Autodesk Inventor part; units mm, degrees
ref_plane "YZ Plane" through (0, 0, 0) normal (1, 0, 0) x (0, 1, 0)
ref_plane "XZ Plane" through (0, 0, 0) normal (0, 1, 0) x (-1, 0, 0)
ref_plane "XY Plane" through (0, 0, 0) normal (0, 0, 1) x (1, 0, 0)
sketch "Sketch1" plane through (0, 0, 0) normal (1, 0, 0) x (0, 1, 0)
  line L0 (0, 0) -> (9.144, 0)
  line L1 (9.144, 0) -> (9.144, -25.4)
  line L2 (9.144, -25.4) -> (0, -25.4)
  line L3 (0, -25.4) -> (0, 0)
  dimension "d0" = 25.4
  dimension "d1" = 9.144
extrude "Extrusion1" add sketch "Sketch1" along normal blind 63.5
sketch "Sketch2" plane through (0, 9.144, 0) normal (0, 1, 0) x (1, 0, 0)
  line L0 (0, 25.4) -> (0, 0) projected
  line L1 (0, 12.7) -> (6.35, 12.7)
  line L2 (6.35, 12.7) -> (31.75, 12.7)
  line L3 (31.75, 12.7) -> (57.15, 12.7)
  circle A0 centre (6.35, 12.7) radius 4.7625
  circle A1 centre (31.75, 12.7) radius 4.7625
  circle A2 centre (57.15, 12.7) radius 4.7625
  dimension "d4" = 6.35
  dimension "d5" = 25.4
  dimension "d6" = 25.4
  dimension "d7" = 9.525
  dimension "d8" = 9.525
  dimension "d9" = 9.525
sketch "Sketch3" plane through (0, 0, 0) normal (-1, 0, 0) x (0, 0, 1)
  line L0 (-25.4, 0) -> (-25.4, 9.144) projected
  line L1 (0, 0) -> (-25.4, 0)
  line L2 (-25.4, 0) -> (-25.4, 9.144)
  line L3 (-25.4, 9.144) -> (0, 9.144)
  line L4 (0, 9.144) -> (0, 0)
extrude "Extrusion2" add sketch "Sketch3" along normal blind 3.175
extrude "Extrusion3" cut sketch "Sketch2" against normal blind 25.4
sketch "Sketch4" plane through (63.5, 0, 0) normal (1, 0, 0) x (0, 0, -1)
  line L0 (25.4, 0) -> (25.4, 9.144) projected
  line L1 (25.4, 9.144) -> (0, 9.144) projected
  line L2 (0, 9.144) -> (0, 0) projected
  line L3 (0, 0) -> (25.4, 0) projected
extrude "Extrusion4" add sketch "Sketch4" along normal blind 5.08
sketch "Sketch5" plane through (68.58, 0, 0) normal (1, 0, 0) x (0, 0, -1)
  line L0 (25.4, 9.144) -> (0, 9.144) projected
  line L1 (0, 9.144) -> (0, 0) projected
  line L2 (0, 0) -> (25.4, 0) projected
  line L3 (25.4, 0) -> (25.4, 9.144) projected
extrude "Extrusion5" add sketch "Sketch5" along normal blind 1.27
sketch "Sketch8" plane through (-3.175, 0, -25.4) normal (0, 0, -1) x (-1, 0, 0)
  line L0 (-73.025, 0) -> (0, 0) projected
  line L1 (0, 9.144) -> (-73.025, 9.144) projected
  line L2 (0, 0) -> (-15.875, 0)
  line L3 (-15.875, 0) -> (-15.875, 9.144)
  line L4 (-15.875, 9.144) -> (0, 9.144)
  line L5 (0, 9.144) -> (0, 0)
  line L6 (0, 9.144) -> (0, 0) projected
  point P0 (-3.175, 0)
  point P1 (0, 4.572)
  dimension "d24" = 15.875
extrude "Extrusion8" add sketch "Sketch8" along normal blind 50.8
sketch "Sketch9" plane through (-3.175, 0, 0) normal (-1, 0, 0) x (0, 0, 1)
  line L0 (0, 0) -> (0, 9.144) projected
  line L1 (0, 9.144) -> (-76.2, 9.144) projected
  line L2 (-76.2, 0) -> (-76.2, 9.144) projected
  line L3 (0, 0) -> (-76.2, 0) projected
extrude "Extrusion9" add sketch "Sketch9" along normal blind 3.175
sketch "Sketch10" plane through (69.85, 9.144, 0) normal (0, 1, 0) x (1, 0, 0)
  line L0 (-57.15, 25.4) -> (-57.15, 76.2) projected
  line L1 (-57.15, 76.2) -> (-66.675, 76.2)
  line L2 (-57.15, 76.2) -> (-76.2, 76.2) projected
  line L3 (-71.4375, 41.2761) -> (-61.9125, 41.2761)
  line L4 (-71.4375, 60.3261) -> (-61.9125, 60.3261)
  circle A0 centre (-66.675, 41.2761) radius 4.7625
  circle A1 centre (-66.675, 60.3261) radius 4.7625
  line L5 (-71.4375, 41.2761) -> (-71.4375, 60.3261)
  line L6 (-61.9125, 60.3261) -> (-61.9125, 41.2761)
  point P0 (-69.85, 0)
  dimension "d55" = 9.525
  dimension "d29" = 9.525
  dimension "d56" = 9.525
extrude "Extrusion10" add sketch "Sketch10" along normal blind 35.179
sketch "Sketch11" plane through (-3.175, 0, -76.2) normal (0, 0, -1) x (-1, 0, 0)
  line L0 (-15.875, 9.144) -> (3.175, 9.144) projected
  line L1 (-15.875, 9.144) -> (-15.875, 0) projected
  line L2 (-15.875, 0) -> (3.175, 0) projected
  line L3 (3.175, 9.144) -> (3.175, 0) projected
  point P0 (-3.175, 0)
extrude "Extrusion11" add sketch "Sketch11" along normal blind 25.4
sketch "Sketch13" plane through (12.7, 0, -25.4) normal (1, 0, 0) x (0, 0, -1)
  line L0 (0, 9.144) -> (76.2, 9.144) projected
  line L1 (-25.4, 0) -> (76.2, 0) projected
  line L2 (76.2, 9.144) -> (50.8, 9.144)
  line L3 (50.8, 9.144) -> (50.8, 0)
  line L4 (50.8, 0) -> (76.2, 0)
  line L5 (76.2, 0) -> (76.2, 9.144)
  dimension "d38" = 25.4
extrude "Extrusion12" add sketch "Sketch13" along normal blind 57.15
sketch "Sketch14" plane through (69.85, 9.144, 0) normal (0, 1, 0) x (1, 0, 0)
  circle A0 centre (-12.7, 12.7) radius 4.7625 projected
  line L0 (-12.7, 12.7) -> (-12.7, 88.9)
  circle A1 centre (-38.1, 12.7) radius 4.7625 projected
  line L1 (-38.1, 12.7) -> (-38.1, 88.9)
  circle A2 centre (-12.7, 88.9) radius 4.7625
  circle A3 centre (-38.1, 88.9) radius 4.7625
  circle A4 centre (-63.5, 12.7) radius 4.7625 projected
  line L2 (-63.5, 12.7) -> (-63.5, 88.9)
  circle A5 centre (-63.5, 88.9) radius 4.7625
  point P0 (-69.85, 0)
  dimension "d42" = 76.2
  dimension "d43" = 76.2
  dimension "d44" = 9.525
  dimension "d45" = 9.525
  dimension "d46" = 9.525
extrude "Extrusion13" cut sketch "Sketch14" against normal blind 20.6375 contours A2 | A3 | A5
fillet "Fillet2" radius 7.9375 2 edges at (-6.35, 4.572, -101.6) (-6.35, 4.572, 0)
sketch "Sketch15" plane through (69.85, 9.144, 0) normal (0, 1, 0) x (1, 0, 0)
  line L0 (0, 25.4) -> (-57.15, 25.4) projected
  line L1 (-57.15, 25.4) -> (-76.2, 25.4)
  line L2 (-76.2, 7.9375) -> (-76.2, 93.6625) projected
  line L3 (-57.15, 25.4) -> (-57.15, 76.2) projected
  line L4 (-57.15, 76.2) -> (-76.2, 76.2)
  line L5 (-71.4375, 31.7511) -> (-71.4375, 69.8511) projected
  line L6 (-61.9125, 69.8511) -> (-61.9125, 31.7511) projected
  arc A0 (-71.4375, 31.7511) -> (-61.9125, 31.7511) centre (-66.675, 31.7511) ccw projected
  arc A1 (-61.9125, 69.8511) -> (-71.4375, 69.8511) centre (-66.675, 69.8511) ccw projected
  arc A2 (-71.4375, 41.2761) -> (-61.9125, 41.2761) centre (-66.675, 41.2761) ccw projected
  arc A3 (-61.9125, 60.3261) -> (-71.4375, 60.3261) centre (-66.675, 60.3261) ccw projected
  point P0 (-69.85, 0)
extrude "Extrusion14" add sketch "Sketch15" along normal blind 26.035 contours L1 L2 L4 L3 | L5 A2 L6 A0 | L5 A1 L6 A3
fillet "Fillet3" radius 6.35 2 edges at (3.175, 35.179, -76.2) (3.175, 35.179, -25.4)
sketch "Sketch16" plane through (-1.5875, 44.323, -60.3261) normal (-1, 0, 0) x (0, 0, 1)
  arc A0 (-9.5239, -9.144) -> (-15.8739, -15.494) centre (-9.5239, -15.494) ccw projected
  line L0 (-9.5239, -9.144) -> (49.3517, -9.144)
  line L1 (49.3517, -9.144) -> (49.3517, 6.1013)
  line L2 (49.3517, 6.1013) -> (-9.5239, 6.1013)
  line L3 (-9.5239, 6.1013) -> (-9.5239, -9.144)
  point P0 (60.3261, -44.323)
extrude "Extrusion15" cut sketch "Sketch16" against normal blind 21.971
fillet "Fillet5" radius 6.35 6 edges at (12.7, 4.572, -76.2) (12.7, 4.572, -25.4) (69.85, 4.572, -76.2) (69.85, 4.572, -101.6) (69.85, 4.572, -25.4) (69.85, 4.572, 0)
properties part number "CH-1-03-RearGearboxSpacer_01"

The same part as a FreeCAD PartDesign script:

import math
import FreeCAD as App
import Part
import Sketcher
from FreeCAD import Vector
Q = App.Units.Quantity


def edges_at(feature, points):
    """Names of the edges that pass closest to the given points."""
    edges = feature.Shape.Edges
    near = lambda p: min(range(len(edges)), key=lambda i: edges[i].distToShape(Part.Vertex(*p))[0])
    return sorted({f"Edge{near(p) + 1}" for p in points})

doc = App.newDocument("Part")
body = doc.addObject("PartDesign::Body", "Body")

sketch1 = body.newObject("Sketcher::SketchObject", "Sketch")
sketch1.AttachmentSupport = (doc.getObject("YZ_Plane"), [""])
sketch1.MapMode = "FlatFace"
sketch1.addGeometry([
    Part.LineSegment(Vector(9.144, 0, 0), Vector(0, 0, 0)),
    Part.LineSegment(Vector(0, 0, 0), Vector(0, -25.4, 0)),
    Part.LineSegment(Vector(0, -25.4, 0), Vector(9.144, -25.4, 0)),
    Part.LineSegment(Vector(9.144, -25.4, 0), Vector(9.144, 0, 0)),
], False)
sketch1.addConstraint([
    Sketcher.Constraint("Coincident", 0, 2, 1, 1),
    Sketcher.Constraint("Coincident", 1, 2, 2, 1),
    Sketcher.Constraint("Coincident", 2, 2, 3, 1),
    Sketcher.Constraint("Coincident", 3, 2, 0, 1),
    Sketcher.Constraint("Horizontal", 0),
    Sketcher.Constraint("Vertical", 1),
    Sketcher.Constraint("Horizontal", 2),
    Sketcher.Constraint("Vertical", 3),
    Sketcher.Constraint("Coincident", 0, 2, -1, 1),
    Sketcher.Constraint("DistanceY", 1, 2, 1, 1, Q("1 in")),
    Sketcher.Constraint("DistanceX", 0, 2, 0, 1, Q("0.36 in")),
])
pad1 = body.newObject("PartDesign::Pad", "Pad")
pad1.Profile = sketch1
pad1.Length = Q("2.5 in")

sketch2 = body.newObject("Sketcher::SketchObject", "Sketch001")
sketch2.AttachmentSupport = (doc.getObject("YZ_Plane"), [""])
sketch2.MapMode = "FlatFace"
sketch2.addGeometry([
    Part.LineSegment(Vector(9.144, -25.4, 0), Vector(0, -25.4, 0)),
    Part.LineSegment(Vector(0, -25.4, 0), Vector(0, 0, 0)),
    Part.LineSegment(Vector(0, 0, 0), Vector(9.144, 0, 0)),
    Part.LineSegment(Vector(9.144, 0, 0), Vector(9.144, -25.4, 0)),
], False)
sketch2.addConstraint([
    Sketcher.Constraint("Coincident", 0, 2, 1, 1),
    Sketcher.Constraint("Coincident", 1, 2, 2, 1),
    Sketcher.Constraint("Coincident", 2, 2, 3, 1),
    Sketcher.Constraint("Coincident", 3, 2, 0, 1),
    Sketcher.Constraint("Horizontal", 0),
    Sketcher.Constraint("Vertical", 1),
    Sketcher.Constraint("Horizontal", 2),
    Sketcher.Constraint("Vertical", 3),
    Sketcher.Constraint("Coincident", 1, 2, -1, 1),
    Sketcher.Constraint("DistanceY", 1, 1, 1, 2, Q("1 in")),
    Sketcher.Constraint("DistanceX", 0, 2, 0, 1, Q("0.36 in")),
])
pad2 = body.newObject("PartDesign::Pad", "Pad001")
pad2.Profile = sketch2
pad2.Length = Q("0.125 in")
pad2.Reversed = True

sketch3 = body.newObject("Sketcher::SketchObject", "Sketch002")
sketch3.AttachmentSupport = (doc.getObject("XZ_Plane"), [""])
sketch3.MapMode = "FlatFace"
sketch3.AttachmentOffset = App.Placement(Vector(0, 0, -0.36 * 25.4), App.Rotation())
sketch3.addGeometry([
    Part.Circle(Vector(6.35, -12.7, 0), Vector(0, 0, 1), 4.7625),
    Part.Circle(Vector(57.15, -12.7, 0), Vector(0, 0, 1), 4.7625),
    Part.Circle(Vector(31.75, -12.7, 0), Vector(0, 0, 1), 4.7625),
], False)
sketch3.addConstraint([
    Sketcher.Constraint("Equal", 0, 1),
    Sketcher.Constraint("Equal", 1, 2),
    Sketcher.Constraint("Horizontal", 0, 3, 1, 3),
    Sketcher.Constraint("Horizontal", 1, 3, 2, 3),
    Sketcher.Constraint("Diameter", 0, Q("0.375 in")),
    Sketcher.Constraint("DistanceX", 0, 3, 2, 3, Q("1 in")),
    Sketcher.Constraint("DistanceX", 2, 3, 1, 3, Q("1 in")),
    Sketcher.Constraint("DistanceX", -1, 1, 0, 3, Q("0.25 in")),
    Sketcher.Constraint("DistanceY", 0, 3, -1, 1, Q("0.5 in")),
])
pocket1 = body.newObject("PartDesign::Pocket", "Pocket")
pocket1.Profile = sketch3
pocket1.Length = Q("1 in")
pocket1.Reversed = True

sketch4 = body.newObject("Sketcher::SketchObject", "Sketch003")
sketch4.AttachmentSupport = (doc.getObject("YZ_Plane"), [""])
sketch4.MapMode = "FlatFace"
sketch4.AttachmentOffset = App.Placement(Vector(0, 0, 2.5 * 25.4), App.Rotation())
sketch4.addGeometry([
    Part.LineSegment(Vector(0, 0, 0), Vector(0, -25.4, 0)),
    Part.LineSegment(Vector(0, -25.4, 0), Vector(9.144, -25.4, 0)),
    Part.LineSegment(Vector(9.144, -25.4, 0), Vector(9.144, 0, 0)),
    Part.LineSegment(Vector(9.144, 0, 0), Vector(0, 0, 0)),
], False)
sketch4.addConstraint([
    Sketcher.Constraint("Coincident", 0, 2, 1, 1),
    Sketcher.Constraint("Coincident", 1, 2, 2, 1),
    Sketcher.Constraint("Coincident", 2, 2, 3, 1),
    Sketcher.Constraint("Coincident", 3, 2, 0, 1),
    Sketcher.Constraint("Vertical", 0),
    Sketcher.Constraint("Horizontal", 1),
    Sketcher.Constraint("Vertical", 2),
    Sketcher.Constraint("Horizontal", 3),
    Sketcher.Constraint("Coincident", 3, 2, -1, 1),
    Sketcher.Constraint("DistanceY", 0, 2, 0, 1, Q("1 in")),
    Sketcher.Constraint("DistanceX", 1, 1, 1, 2, Q("0.36 in")),
])
pad3 = body.newObject("PartDesign::Pad", "Pad002")
pad3.Profile = sketch4
pad3.Length = Q("0.2 in")

sketch5 = body.newObject("Sketcher::SketchObject", "Sketch004")
sketch5.AttachmentSupport = (doc.getObject("YZ_Plane"), [""])
sketch5.MapMode = "FlatFace"
sketch5.AttachmentOffset = App.Placement(Vector(0, 0, 2.7 * 25.4), App.Rotation())
sketch5.addGeometry([
    Part.LineSegment(Vector(0, -25.4, 0), Vector(9.144, -25.4, 0)),
    Part.LineSegment(Vector(9.144, -25.4, 0), Vector(9.144, 0, 0)),
    Part.LineSegment(Vector(9.144, 0, 0), Vector(0, 0, 0)),
    Part.LineSegment(Vector(0, 0, 0), Vector(0, -25.4, 0)),
], False)
sketch5.addConstraint([
    Sketcher.Constraint("Coincident", 0, 2, 1, 1),
    Sketcher.Constraint("Coincident", 1, 2, 2, 1),
    Sketcher.Constraint("Coincident", 2, 2, 3, 1),
    Sketcher.Constraint("Coincident", 3, 2, 0, 1),
    Sketcher.Constraint("Horizontal", 0),
    Sketcher.Constraint("Vertical", 1),
    Sketcher.Constraint("Horizontal", 2),
    Sketcher.Constraint("Vertical", 3),
    Sketcher.Constraint("Coincident", 2, 2, -1, 1),
    Sketcher.Constraint("DistanceY", 1, 1, 1, 2, Q("1 in")),
    Sketcher.Constraint("DistanceX", 0, 1, 0, 2, Q("0.36 in")),
])
pad4 = body.newObject("PartDesign::Pad", "Pad003")
pad4.Profile = sketch5
pad4.Length = Q("0.05 in")

sketch6 = body.newObject("Sketcher::SketchObject", "Sketch005")
sketch6.AttachmentSupport = (doc.getObject("XY_Plane"), [""])
sketch6.MapMode = "FlatFace"
sketch6.AttachmentOffset = App.Placement(Vector(0, 0, -1 * 25.4), App.Rotation())
sketch6.addGeometry([
    Part.LineSegment(Vector(12.7, 9.144, 0), Vector(12.7, 0, 0)),
    Part.LineSegment(Vector(12.7, 0, 0), Vector(-3.175, 0, 0)),
    Part.LineSegment(Vector(-3.175, 0, 0), Vector(-3.175, 9.144, 0)),
    Part.LineSegment(Vector(-3.175, 9.144, 0), Vector(12.7, 9.144, 0)),
], False)
sketch6.addConstraint([
    Sketcher.Constraint("Coincident", 0, 2, 1, 1),
    Sketcher.Constraint("Coincident", 1, 2, 2, 1),
    Sketcher.Constraint("Coincident", 2, 2, 3, 1),
    Sketcher.Constraint("Coincident", 3, 2, 0, 1),
    Sketcher.Constraint("Vertical", 0),
    Sketcher.Constraint("Horizontal", 1),
    Sketcher.Constraint("Vertical", 2),
    Sketcher.Constraint("Horizontal", 3),
    Sketcher.Constraint("PointOnObject", 0, 2, -1),
    Sketcher.Constraint("DistanceX", 1, 2, 1, 1, Q("0.625 in")),
    Sketcher.Constraint("DistanceY", 0, 2, 0, 1, Q("0.36 in")),
    Sketcher.Constraint("DistanceX", -1, 1, 0, 2, Q("0.5 in")),
])
pad5 = body.newObject("PartDesign::Pad", "Pad004")
pad5.Profile = sketch6
pad5.Length = Q("2 in")
pad5.Reversed = True

sketch7 = body.newObject("Sketcher::SketchObject", "Sketch006")
sketch7.AttachmentSupport = (doc.getObject("YZ_Plane"), [""])
sketch7.MapMode = "FlatFace"
sketch7.AttachmentOffset = App.Placement(Vector(0, 0, -0.125 * 25.4), App.Rotation())
sketch7.addGeometry([
    Part.LineSegment(Vector(0, -76.2, 0), Vector(0, 0, 0)),
    Part.LineSegment(Vector(0, 0, 0), Vector(9.144, 0, 0)),
    Part.LineSegment(Vector(9.144, 0, 0), Vector(9.144, -76.2, 0)),
    Part.LineSegment(Vector(9.144, -76.2, 0), Vector(0, -76.2, 0)),
], False)
sketch7.addConstraint([
    Sketcher.Constraint("Coincident", 0, 2, 1, 1),
    Sketcher.Constraint("Coincident", 1, 2, 2, 1),
    Sketcher.Constraint("Coincident", 2, 2, 3, 1),
    Sketcher.Constraint("Coincident", 3, 2, 0, 1),
    Sketcher.Constraint("Vertical", 0),
    Sketcher.Constraint("Horizontal", 1),
    Sketcher.Constraint("Vertical", 2),
    Sketcher.Constraint("Horizontal", 3),
    Sketcher.Constraint("Coincident", 0, 2, -1, 1),
    Sketcher.Constraint("DistanceY", 0, 1, 0, 2, Q("3 in")),
    Sketcher.Constraint("DistanceX", 1, 1, 1, 2, Q("0.36 in")),
])
pad6 = body.newObject("PartDesign::Pad", "Pad005")
pad6.Profile = sketch7
pad6.Length = Q("0.125 in")
pad6.Reversed = True

sketch8 = body.newObject("Sketcher::SketchObject", "Sketch007")
sketch8.AttachmentSupport = (doc.getObject("XZ_Plane"), [""])
sketch8.MapMode = "FlatFace"
sketch8.AttachmentOffset = App.Placement(Vector(0, 0, -0.36 * 25.4), App.Rotation())
sketch8.addGeometry([
    Part.LineSegment(Vector(-1.5875, -60.3261, 0), Vector(-1.5875, -41.2761, 0)),
    Part.ArcOfCircle(Part.Circle(Vector(3.175, -41.2761, 0), Vector(0, 0, 1), 4.7625), math.radians(0), math.radians(180)),
    Part.LineSegment(Vector(7.9375, -41.2761, 0), Vector(7.9375, -60.3261, 0)),
    Part.ArcOfCircle(Part.Circle(Vector(3.175, -60.3261, 0), Vector(0, 0, 1), 4.7625), math.radians(180), math.radians(360)),
], False)
sketch8.addConstraint([
    Sketcher.Constraint("Tangent", 0, 2, 1, 2),
    Sketcher.Constraint("Tangent", 1, 1, 2, 1),
    Sketcher.Constraint("Tangent", 2, 2, 3, 2),
    Sketcher.Constraint("Tangent", 3, 1, 0, 1),
    Sketcher.Constraint("Vertical", 0),
    Sketcher.Constraint("Vertical", 2),
    Sketcher.Constraint("Radius", 1, Q("0.1875 in")),
    Sketcher.Constraint("DistanceY", 0, 1, 0, 2, Q("0.75 in")),
    Sketcher.Constraint("DistanceX", -1, 1, 1, 3, Q("0.125 in")),
    Sketcher.Constraint("DistanceY", 1, 3, -1, 1, Q("41.276 mm")),
])
pad7 = body.newObject("PartDesign::Pad", "Pad006")
pad7.Profile = sketch8
pad7.Length = Q("1.385 in")
pad7.Reversed = True

sketch9 = body.newObject("Sketcher::SketchObject", "Sketch008")
sketch9.AttachmentSupport = (doc.getObject("XY_Plane"), [""])
sketch9.MapMode = "FlatFace"
sketch9.AttachmentOffset = App.Placement(Vector(0, 0, -3 * 25.4), App.Rotation())
sketch9.addGeometry([
    Part.LineSegment(Vector(-6.35, 9.144, 0), Vector(12.7, 9.144, 0)),
    Part.LineSegment(Vector(12.7, 9.144, 0), Vector(12.7, 0, 0)),
    Part.LineSegment(Vector(12.7, 0, 0), Vector(-6.35, 0, 0)),
    Part.LineSegment(Vector(-6.35, 0, 0), Vector(-6.35, 9.144, 0)),
], False)
sketch9.addConstraint([
    Sketcher.Constraint("Coincident", 0, 2, 1, 1),
    Sketcher.Constraint("Coincident", 1, 2, 2, 1),
    Sketcher.Constraint("Coincident", 2, 2, 3, 1),
    Sketcher.Constraint("Coincident", 3, 2, 0, 1),
    Sketcher.Constraint("Horizontal", 0),
    Sketcher.Constraint("Vertical", 1),
    Sketcher.Constraint("Horizontal", 2),
    Sketcher.Constraint("Vertical", 3),
    Sketcher.Constraint("PointOnObject", 1, 2, -1),
    Sketcher.Constraint("DistanceX", 0, 1, 0, 2, Q("0.75 in")),
    Sketcher.Constraint("DistanceY", 1, 2, 1, 1, Q("0.36 in")),
    Sketcher.Constraint("DistanceX", -1, 1, 0, 2, Q("0.5 in")),
])
pad8 = body.newObject("PartDesign::Pad", "Pad007")
pad8.Profile = sketch9
pad8.Length = Q("1 in")
pad8.Reversed = True

sketch10 = body.newObject("Sketcher::SketchObject", "Sketch009")
sketch10.AttachmentSupport = (doc.getObject("YZ_Plane"), [""])
sketch10.MapMode = "FlatFace"
sketch10.AttachmentOffset = App.Placement(Vector(0, 0, 0.5 * 25.4), App.Rotation())
sketch10.addGeometry([
    Part.LineSegment(Vector(9.144, -101.6, 0), Vector(9.144, -76.2, 0)),
    Part.LineSegment(Vector(9.144, -76.2, 0), Vector(0, -76.2, 0)),
    Part.LineSegment(Vector(0, -76.2, 0), Vector(0, -101.6, 0)),
    Part.LineSegment(Vector(0, -101.6, 0), Vector(9.144, -101.6, 0)),
], False)
sketch10.addConstraint([
    Sketcher.Constraint("Coincident", 0, 2, 1, 1),
    Sketcher.Constraint("Coincident", 1, 2, 2, 1),
    Sketcher.Constraint("Coincident", 2, 2, 3, 1),
    Sketcher.Constraint("Coincident", 3, 2, 0, 1),
    Sketcher.Constraint("Vertical", 0),
    Sketcher.Constraint("Horizontal", 1),
    Sketcher.Constraint("Vertical", 2),
    Sketcher.Constraint("Horizontal", 3),
    Sketcher.Constraint("PointOnObject", 1, 2, -2),
    Sketcher.Constraint("DistanceY", 0, 1, 0, 2, Q("1 in")),
    Sketcher.Constraint("DistanceY", 0, 2, -1, 1, Q("3 in")),
    Sketcher.Constraint("DistanceX", 1, 2, 1, 1, Q("0.36 in")),
])
pad9 = body.newObject("PartDesign::Pad", "Pad008")
pad9.Profile = sketch10
pad9.Length = Q("2.25 in")

sketch11 = body.newObject("Sketcher::SketchObject", "Sketch010")
sketch11.AttachmentSupport = (doc.getObject("XZ_Plane"), [""])
sketch11.MapMode = "FlatFace"
sketch11.AttachmentOffset = App.Placement(Vector(0, 0, -0.36 * 25.4), App.Rotation())
sketch11.addGeometry([
    Part.Circle(Vector(57.15, -88.9, 0), Vector(0, 0, 1), 4.7625),
    Part.Circle(Vector(31.75, -88.9, 0), Vector(0, 0, 1), 4.7625),
    Part.Circle(Vector(6.35, -88.9, 0), Vector(0, 0, 1), 4.7625),
], False)
sketch11.addConstraint([
    Sketcher.Constraint("Equal", 0, 1),
    Sketcher.Constraint("Equal", 1, 2),
    Sketcher.Constraint("Horizontal", 0, 3, 1, 3),
    Sketcher.Constraint("Horizontal", 1, 3, 2, 3),
    Sketcher.Constraint("Diameter", 0, Q("0.375 in")),
    Sketcher.Constraint("DistanceX", 1, 3, 0, 3, Q("1 in")),
    Sketcher.Constraint("DistanceX", 2, 3, 1, 3, Q("1 in")),
    Sketcher.Constraint("DistanceY", 0, 3, -1, 1, Q("3.5 in")),
    Sketcher.Constraint("DistanceX", -1, 1, 0, 3, Q("2.25 in")),
])
pocket2 = body.newObject("PartDesign::Pocket", "Pocket001")
pocket2.Profile = sketch11
pocket2.Length = Q("0.8125 in")
pocket2.Reversed = True
doc.recompute()

fillet = body.newObject("PartDesign::Fillet", "Fillet")
fillet.Base = (pocket2, edges_at(pocket2, [(-6.35, 4.572, -101.6), (-6.35, 4.572, 0)]))
fillet.Radius = Q("0.3125 in")

sketch12 = body.newObject("Sketcher::SketchObject", "Sketch011")
sketch12.AttachmentSupport = (doc.getObject("XZ_Plane"), [""])
sketch12.MapMode = "FlatFace"
sketch12.AttachmentOffset = App.Placement(Vector(0, 0, -0.36 * 25.4), App.Rotation())
sketch12.addGeometry([
    Part.LineSegment(Vector(-6.35, -25.4, 0), Vector(12.7, -25.4, 0)),
    Part.LineSegment(Vector(12.7, -25.4, 0), Vector(12.7, -76.2, 0)),
    Part.LineSegment(Vector(12.7, -76.2, 0), Vector(-6.35, -76.2, 0)),
    Part.LineSegment(Vector(-6.35, -76.2, 0), Vector(-6.35, -25.4, 0)),
    Part.LineSegment(Vector(7.9375, -60.3261, 0), Vector(7.9375, -41.2761, 0)),
    Part.ArcOfCircle(Part.Circle(Vector(3.175, -41.2761, 0), Vector(0, 0, 1), 4.7625), math.radians(0), math.radians(180)),
    Part.LineSegment(Vector(-1.5875, -41.2761, 0), Vector(-1.5875, -60.3261, 0)),
    Part.ArcOfCircle(Part.Circle(Vector(3.175, -60.3261, 0), Vector(0, 0, 1), 4.7625), math.radians(180), math.radians(360)),
], False)
sketch12.addConstraint([
    Sketcher.Constraint("Coincident", 0, 2, 1, 1),
    Sketcher.Constraint("Coincident", 1, 2, 2, 1),
    Sketcher.Constraint("Coincident", 2, 2, 3, 1),
    Sketcher.Constraint("Coincident", 3, 2, 0, 1),
    Sketcher.Constraint("Tangent", 4, 2, 5, 1),
    Sketcher.Constraint("Tangent", 5, 2, 6, 1),
    Sketcher.Constraint("Tangent", 6, 2, 7, 1),
    Sketcher.Constraint("Tangent", 7, 2, 4, 1),
    Sketcher.Constraint("Horizontal", 0),
    Sketcher.Constraint("Vertical", 1),
    Sketcher.Constraint("Horizontal", 2),
    Sketcher.Constraint("Vertical", 3),
    Sketcher.Constraint("Vertical", 4),
    Sketcher.Constraint("Vertical", 6),
    Sketcher.Constraint("Equal", 2, 4),
    Sketcher.Constraint("DistanceY", 1, 2, 1, 1, Q("2 in")),
    Sketcher.Constraint("DistanceY", 0, 2, -1, 1, Q("1 in")),
    Sketcher.Constraint("Radius", 5, Q("0.1875 in")),
    Sketcher.Constraint("DistanceX", 0, 1, 0, 2, Q("0.75 in")),
    Sketcher.Constraint("DistanceX", -1, 1, 0, 2, Q("0.5 in")),
    Sketcher.Constraint("DistanceX", -1, 1, 5, 3, Q("0.125 in")),
    Sketcher.Constraint("DistanceY", 5, 3, -1, 1, Q("41.276 mm")),
])
pad10 = body.newObject("PartDesign::Pad", "Pad009")
pad10.Profile = sketch12
pad10.Length = Q("1.025 in")
pad10.Reversed = True
doc.recompute()

fillet2 = body.newObject("PartDesign::Fillet", "Fillet001")
fillet2.Base = (pad10, edges_at(pad10, [(3.175, 35.179, -76.2), (3.175, 35.179, -25.4)]))
fillet2.Radius = Q("0.25 in")

sketch13 = body.newObject("Sketcher::SketchObject", "Sketch012")
sketch13.AttachmentSupport = (doc.getObject("YZ_Plane"), [""])
sketch13.MapMode = "FlatFace"
sketch13.AttachmentOffset = App.Placement(Vector(0, 0, -0.0625 * 25.4), App.Rotation())
sketch13.addGeometry([
    Part.LineSegment(Vector(50.4243, -69.85, 0), Vector(35.179, -69.85, 0)),
    Part.LineSegment(Vector(35.179, -69.85, 0), Vector(35.179, -10.9744, 0)),
    Part.LineSegment(Vector(35.179, -10.9744, 0), Vector(50.4243, -10.9744, 0)),
    Part.LineSegment(Vector(50.4243, -10.9744, 0), Vector(50.4243, -69.85, 0)),
], False)
sketch13.addConstraint([
    Sketcher.Constraint("Coincident", 0, 2, 1, 1),
    Sketcher.Constraint("Coincident", 1, 2, 2, 1),
    Sketcher.Constraint("Coincident", 2, 2, 3, 1),
    Sketcher.Constraint("Coincident", 3, 2, 0, 1),
    Sketcher.Constraint("Horizontal", 0),
    Sketcher.Constraint("Vertical", 1),
    Sketcher.Constraint("Horizontal", 2),
    Sketcher.Constraint("Vertical", 3),
    Sketcher.Constraint("DistanceY", 0, 2, -1, 1, Q("2.75 in")),
    Sketcher.Constraint("DistanceX", 0, 2, 0, 1, Q("0.6002 in")),
    Sketcher.Constraint("DistanceX", -1, 1, 0, 2, Q("1.385 in")),
    Sketcher.Constraint("DistanceY", 1, 1, 1, 2, Q("58.8756 mm")),
])
pocket3 = body.newObject("PartDesign::Pocket", "Pocket002")
pocket3.Profile = sketch13
pocket3.Length = Q("0.865 in")
pocket3.Reversed = True
doc.recompute()

fillet3 = body.newObject("PartDesign::Fillet", "Fillet002")
fillet3.Base = (pocket3, edges_at(pocket3, [
    (12.7, 4.572, -76.2),
    (12.7, 4.572, -25.4),
    (69.85, 4.572, -76.2),
    (69.85, 4.572, -101.6),
    (69.85, 4.572, -25.4),
    (69.85, 4.572, 0),
]))
fillet3.Radius = Q("0.25 in")

doc.recompute()
